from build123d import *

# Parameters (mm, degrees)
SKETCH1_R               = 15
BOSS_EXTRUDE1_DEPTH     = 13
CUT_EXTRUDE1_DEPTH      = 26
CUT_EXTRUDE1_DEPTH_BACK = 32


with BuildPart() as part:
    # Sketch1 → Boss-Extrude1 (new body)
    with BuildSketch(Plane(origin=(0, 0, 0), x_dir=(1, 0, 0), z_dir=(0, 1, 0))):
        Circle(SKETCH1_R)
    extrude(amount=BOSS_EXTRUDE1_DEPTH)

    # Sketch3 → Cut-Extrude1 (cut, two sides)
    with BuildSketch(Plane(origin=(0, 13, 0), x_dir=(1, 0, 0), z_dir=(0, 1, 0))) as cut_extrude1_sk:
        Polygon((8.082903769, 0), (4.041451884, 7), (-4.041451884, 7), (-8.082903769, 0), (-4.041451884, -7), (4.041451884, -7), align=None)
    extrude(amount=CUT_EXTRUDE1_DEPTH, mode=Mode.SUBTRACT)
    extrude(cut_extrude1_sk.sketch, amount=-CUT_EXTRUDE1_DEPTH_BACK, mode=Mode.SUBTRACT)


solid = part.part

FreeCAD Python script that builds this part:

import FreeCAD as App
import Part
import Sketcher
from FreeCAD import Vector
Q = App.Units.Quantity


def add_polygon(sketch, points):
    """Adds a closed chain of lines whose ends are joined by coincident constraints."""
    first, n = sketch.GeometryCount, len(points)
    for a, b in zip(points, points[1:] + points[:1]):
        sketch.addGeometry(Part.LineSegment(App.Vector(*a, 0), App.Vector(*b, 0)), False)
    for i in range(n):
        sketch.addConstraint(Sketcher.Constraint("Coincident", first + i, 2, first + (i + 1) % n, 1))

doc = App.newDocument("Part")
body = doc.addObject("PartDesign::Body", "Body")

sketch1 = doc.addObject("Sketcher::SketchObject", "Sketch")
body.addObject(sketch1)
sketch1.AttachmentSupport = (doc.XZ_Plane, [""])
sketch1.MapMode = "FlatFace"
sketch1.addGeometry(Part.Circle(Vector(0, 0, 0), Vector(0, 0, 1), 15), False)
sketch1.addConstraint([
    Sketcher.Constraint("Coincident", 0, 3, -1, 1),
    Sketcher.Constraint("Diameter", 0, Q("30 mm")),
])
pad1 = doc.addObject("PartDesign::Pad", "Pad")
body.addObject(pad1)
pad1.Profile = sketch1
pad1.Length = 13
pad1.Reversed = True

sketch2 = doc.addObject("Sketcher::SketchObject", "Sketch001")
body.addObject(sketch2)
sketch2.AttachmentSupport = (doc.XZ_Plane, [""])
sketch2.MapMode = "FlatFace"
sketch2.AttachmentOffset = App.Placement(Vector(0, 0, -13), App.Rotation())
add_polygon(sketch2, [(8, 0), (4, -7), (-4, -7), (-8, 0), (-4, 7), (4, 7)])
sketch2.addConstraint([
    Sketcher.Constraint("Horizontal", 1),
    Sketcher.Constraint("Horizontal", 4),
    Sketcher.Constraint("Symmetric", 0, 2, 3, 2, -1, 1),
    Sketcher.Constraint("Symmetric", 2, 2, 5, 2, -1, 1),
    Sketcher.Constraint("PointOnObject", 2, 2, -1),
    Sketcher.Constraint("Parallel", 2, 5),
    Sketcher.Constraint("Vertical", 1, 2, 3, 2),
    Sketcher.Constraint("Angle", 0, Q("-120 deg")),
    Sketcher.Constraint("DistanceY", 0, 2, -1, 1, Q("7 mm")),
    Sketcher.Constraint("DistanceX", 1, 2, 1, 1, Q("8.082904 mm")),
])
pocket1 = doc.addObject("PartDesign::Pocket", "Pocket")
body.addObject(pocket1)
pocket1.Profile = sketch2
pocket1.Type = "ThroughAll"
pocket1.Midplane = True

doc.recompute()
